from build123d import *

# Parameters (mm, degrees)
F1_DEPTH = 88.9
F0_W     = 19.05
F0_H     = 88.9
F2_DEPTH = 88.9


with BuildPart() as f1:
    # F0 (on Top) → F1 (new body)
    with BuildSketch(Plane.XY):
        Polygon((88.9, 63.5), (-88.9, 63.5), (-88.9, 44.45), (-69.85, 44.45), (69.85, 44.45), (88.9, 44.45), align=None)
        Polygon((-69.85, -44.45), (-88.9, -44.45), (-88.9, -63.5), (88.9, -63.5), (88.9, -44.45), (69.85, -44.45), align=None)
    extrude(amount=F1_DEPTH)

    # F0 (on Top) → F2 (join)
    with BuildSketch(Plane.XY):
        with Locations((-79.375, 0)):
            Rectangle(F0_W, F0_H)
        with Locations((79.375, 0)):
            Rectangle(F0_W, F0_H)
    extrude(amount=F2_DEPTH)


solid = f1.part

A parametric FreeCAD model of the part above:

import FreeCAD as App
import Part
import Sketcher
from FreeCAD import Vector
Q = App.Units.Quantity


def add_polygon(sketch, points):
    """Adds a closed chain of lines whose ends are joined by coincident constraints."""
    first, n = sketch.GeometryCount, len(points)
    for a, b in zip(points, points[1:] + points[:1]):
        sketch.addGeometry(Part.LineSegment(App.Vector(*a, 0), App.Vector(*b, 0)), False)
    for i in range(n):
        sketch.addConstraint(Sketcher.Constraint("Coincident", first + i, 2, first + (i + 1) % n, 1))

doc = App.newDocument("Part")
body = doc.addObject("PartDesign::Body", "Body")
body.AllowCompound = True

sketch1 = body.newObject("Sketcher::SketchObject", "Sketch")
sketch1.AttachmentSupport = (doc.getObject("XY_Plane"), [""])
sketch1.MapMode = "FlatFace"
add_polygon(sketch1, [(89, 64), (-89, 64), (-89, 44), (89, 44)])
add_polygon(sketch1, [(-89, -44), (-89, -64), (89, -64), (89, -44)])
sketch1.addConstraint([
    Sketcher.Constraint("Horizontal", 0),
    Sketcher.Constraint("Vertical", 1),
    Sketcher.Constraint("Horizontal", 2),
    Sketcher.Constraint("Vertical", 3),
    Sketcher.Constraint("Vertical", 4),
    Sketcher.Constraint("Horizontal", 5),
    Sketcher.Constraint("Vertical", 6),
    Sketcher.Constraint("Horizontal", 7),
    Sketcher.Constraint("Symmetric", 3, 2, 4, 2, -1, 1),
    Sketcher.Constraint("Symmetric", 1, 2, 6, 2, -1, 1),
    Sketcher.Constraint("Vertical", 1, 2, 4, 2),
    Sketcher.Constraint("DistanceX", 0, 2, 0, 1, Q("7 in")),
    Sketcher.Constraint("DistanceY", 4, 2, 0, 2, Q("5 in")),
    Sketcher.Constraint("DistanceY", 1, 2, 1, 1, Q("0.75 in")),
])
pad1 = body.newObject("PartDesign::Pad", "Pad")
pad1.Profile = sketch1
pad1.Length = Q("3.5 in")

sketch2 = body.newObject("Sketcher::SketchObject", "Sketch001")
sketch2.AttachmentSupport = (doc.getObject("XY_Plane"), [""])
sketch2.MapMode = "FlatFace"
add_polygon(sketch2, [(-89, 44), (-89, -44), (-70, -44), (-70, 44)])
add_polygon(sketch2, [(70, 44), (70, -44), (89, -44), (89, 44)])
sketch2.addConstraint([
    Sketcher.Constraint("Vertical", 0),
    Sketcher.Constraint("Horizontal", 1),
    Sketcher.Constraint("Vertical", 2),
    Sketcher.Constraint("Horizontal", 3),
    Sketcher.Constraint("Vertical", 4),
    Sketcher.Constraint("Horizontal", 5),
    Sketcher.Constraint("Vertical", 6),
    Sketcher.Constraint("Horizontal", 7),
    Sketcher.Constraint("Symmetric", 2, 2, 4, 2, -1, 1),
    Sketcher.Constraint("Symmetric", 0, 2, 6, 2, -1, 1),
    Sketcher.Constraint("Horizontal", 1, 2, 4, 2),
    Sketcher.Constraint("DistanceY", 0, 2, 0, 1, Q("3.5 in")),
    Sketcher.Constraint("DistanceX", 0, 2, 5, 2, Q("7 in")),
    Sketcher.Constraint("DistanceX", 1, 1, 1, 2, Q("0.75 in")),
])
pad2 = body.newObject("PartDesign::Pad", "Pad001")
pad2.Profile = sketch2
pad2.Length = Q("3.5 in")

doc.recompute()
